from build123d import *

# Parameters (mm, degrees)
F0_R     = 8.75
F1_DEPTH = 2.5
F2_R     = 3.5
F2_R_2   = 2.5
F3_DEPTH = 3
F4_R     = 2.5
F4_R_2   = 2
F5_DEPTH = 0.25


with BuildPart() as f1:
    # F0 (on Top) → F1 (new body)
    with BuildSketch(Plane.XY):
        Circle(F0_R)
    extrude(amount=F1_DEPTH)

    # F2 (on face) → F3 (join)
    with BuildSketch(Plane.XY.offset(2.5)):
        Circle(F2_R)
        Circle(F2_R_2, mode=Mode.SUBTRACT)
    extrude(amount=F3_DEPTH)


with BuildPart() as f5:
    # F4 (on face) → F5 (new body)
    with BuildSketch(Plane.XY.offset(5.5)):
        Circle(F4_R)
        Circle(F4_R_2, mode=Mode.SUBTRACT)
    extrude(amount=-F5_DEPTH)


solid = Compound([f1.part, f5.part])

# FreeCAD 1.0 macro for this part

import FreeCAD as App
import Part
import Sketcher
from FreeCAD import Vector

doc = App.newDocument("Part")
body = doc.addObject("PartDesign::Body", "Body")

# Sketch on XY plane
sketch1 = body.newObject("Sketcher::SketchObject", "Sketch")
sketch1.AttachmentSupport = (doc.getObject("XY_Plane"), [""])
sketch1.MapMode = "FlatFace"
sketch1.addGeometry(Part.Circle(Vector(0, 0, 0), Vector(0, 0, 1), 8.75), False)
sketch1.addConstraint([
    Sketcher.Constraint("Coincident", 0, 3, -1, 1),
    Sketcher.Constraint("Diameter", 0, 17.5),
])
pad1 = body.newObject("PartDesign::Pad", "Pad")
pad1.Profile = sketch1
pad1.Length = 2.5

# Sketch on XY plane
sketch2 = body.newObject("Sketcher::SketchObject", "Sketch001")
sketch2.AttachmentSupport = (doc.getObject("XY_Plane"), [""])
sketch2.MapMode = "FlatFace"
sketch2.AttachmentOffset = App.Placement(Vector(0, 0, 2.5), App.Rotation())
sketch2.addGeometry([
    Part.Circle(Vector(0, 0, 0), Vector(0, 0, 1), 3.5),
    Part.Circle(Vector(0, 0, 0), Vector(0, 0, 1), 2.5),
], False)
sketch2.addConstraint([
    Sketcher.Constraint("Coincident", 0, 3, -1, 1),
    Sketcher.Constraint("Coincident", 1, 3, -1, 1),
    Sketcher.Constraint("Diameter", 0, 7.0),
    Sketcher.Constraint("Diameter", 1, 5.0),
])
pad2 = body.newObject("PartDesign::Pad", "Pad001")
pad2.Profile = sketch2
pad2.Length = 3
body2 = doc.addObject("PartDesign::Body", "Body001")

# Sketch on XY plane
sketch3 = body2.newObject("Sketcher::SketchObject", "Sketch002")
sketch3.AttachmentSupport = (doc.getObject("XY_Plane001"), [""])
sketch3.MapMode = "FlatFace"
sketch3.AttachmentOffset = App.Placement(Vector(0, 0, 5.5), App.Rotation())
sketch3.addGeometry([
    Part.Circle(Vector(0, 0, 0), Vector(0, 0, 1), 2.5),
    Part.Circle(Vector(0, 0, 0), Vector(0, 0, 1), 2),
], False)
sketch3.addConstraint([
    Sketcher.Constraint("Coincident", 0, 3, -1, 1),
    Sketcher.Constraint("Coincident", 1, 3, -1, 1),
    Sketcher.Constraint("Diameter", 0, 5.0),
    Sketcher.Constraint("Diameter", 1, 4.0),
])
pad3 = body2.newObject("PartDesign::Pad", "Pad002")
pad3.Profile = sketch3
pad3.Length = 0.25
pad3.Reversed = True

doc.recompute()
